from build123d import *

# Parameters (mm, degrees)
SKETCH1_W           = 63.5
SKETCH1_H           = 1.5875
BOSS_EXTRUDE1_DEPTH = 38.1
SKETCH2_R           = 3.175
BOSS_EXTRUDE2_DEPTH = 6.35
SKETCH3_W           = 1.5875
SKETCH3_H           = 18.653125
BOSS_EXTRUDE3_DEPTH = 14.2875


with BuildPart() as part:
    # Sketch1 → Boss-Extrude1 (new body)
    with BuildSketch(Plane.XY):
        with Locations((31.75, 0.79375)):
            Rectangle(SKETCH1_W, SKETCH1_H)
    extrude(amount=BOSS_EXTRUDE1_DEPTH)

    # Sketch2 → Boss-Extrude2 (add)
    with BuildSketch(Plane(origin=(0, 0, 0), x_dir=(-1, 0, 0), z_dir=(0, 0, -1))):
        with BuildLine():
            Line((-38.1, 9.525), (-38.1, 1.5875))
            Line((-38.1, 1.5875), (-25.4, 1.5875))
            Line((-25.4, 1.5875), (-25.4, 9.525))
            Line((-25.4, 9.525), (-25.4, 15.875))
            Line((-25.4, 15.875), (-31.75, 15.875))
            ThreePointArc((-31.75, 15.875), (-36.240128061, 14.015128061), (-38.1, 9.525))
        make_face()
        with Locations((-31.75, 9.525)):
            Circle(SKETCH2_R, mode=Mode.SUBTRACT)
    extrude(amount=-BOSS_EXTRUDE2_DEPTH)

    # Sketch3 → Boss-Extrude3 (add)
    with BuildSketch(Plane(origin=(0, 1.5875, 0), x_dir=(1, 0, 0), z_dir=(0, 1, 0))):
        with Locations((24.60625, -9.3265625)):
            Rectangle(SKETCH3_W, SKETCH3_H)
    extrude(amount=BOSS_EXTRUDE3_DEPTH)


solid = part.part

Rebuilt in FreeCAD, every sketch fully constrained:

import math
import FreeCAD as App
import Part
import Sketcher

V = App.Vector
Q = App.Units.Quantity


def add_polygon(sketch, points):
    """Adds a closed chain of lines whose ends are joined by coincident constraints."""
    first, n = sketch.GeometryCount, len(points)
    for a, b in zip(points, points[1:] + points[:1]):
        sketch.addGeometry(Part.LineSegment(App.Vector(*a, 0), App.Vector(*b, 0)), False)
    for i in range(n):
        sketch.addConstraint(Sketcher.Constraint("Coincident", first + i, 2, first + (i + 1) % n, 1))

doc = App.newDocument("Part")
body = doc.addObject("PartDesign::Body", "Body")

# Sketch on XY plane
sketch1 = body.newObject("Sketcher::SketchObject", "Sketch")
sketch1.AttachmentSupport = (doc.getObject("XY_Plane"), [""])
sketch1.MapMode = "FlatFace"
add_polygon(sketch1, [(0, 1.6), (0, 0), (63.5, 0), (63.5, 1.6)])  # lines 0-3
sketch1.addConstraint(Sketcher.Constraint("Vertical", 0))
sketch1.addConstraint(Sketcher.Constraint("Horizontal", 1))
sketch1.addConstraint(Sketcher.Constraint("Vertical", 2))
sketch1.addConstraint(Sketcher.Constraint("Horizontal", 3))
sketch1.addConstraint(Sketcher.Constraint("Coincident", 0, 2, -1, 1))
sketch1.addConstraint(Sketcher.Constraint("DistanceX", 1, 1, 1, 2, Q("2.5 in")))
sketch1.addConstraint(Sketcher.Constraint("DistanceY", 0, 2, 0, 1, Q("0.0625 in")))
pad1 = body.newObject("PartDesign::Pad", "Pad")
pad1.Profile = sketch1
pad1.Length = Q("1.5 in")

# Sketch on XY plane
sketch2 = body.newObject("Sketcher::SketchObject", "Sketch001")
sketch2.AttachmentSupport = (doc.getObject("XY_Plane"), [""])
sketch2.MapMode = "FlatFace"
sketch2.addGeometry(Part.LineSegment(V(38.1, 9.5, 0), V(38.1, 1.6, 0)), False)
sketch2.addGeometry(Part.LineSegment(V(38.1, 1.6, 0), V(25.4, 1.6, 0)), False)
sketch2.addGeometry(Part.LineSegment(V(25.4, 1.6, 0), V(25.4, 15.9, 0)), False)
sketch2.addGeometry(Part.LineSegment(V(25.4, 15.9, 0), V(31.8, 15.9, 0)), False)
sketch2.addGeometry(Part.ArcOfCircle(Part.Circle(V(31.8, 9.5, 0), V(0, 0, 1), 6.3), math.radians(0), math.radians(90)), False)
sketch2.addGeometry(Part.Circle(V(31.8, 9.5, 0), V(0, 0, 1), 3.2), False)
sketch2.addConstraint(Sketcher.Constraint("Coincident", 0, 2, 1, 1))
sketch2.addConstraint(Sketcher.Constraint("Coincident", 1, 2, 2, 1))
sketch2.addConstraint(Sketcher.Constraint("Coincident", 2, 2, 3, 1))
sketch2.addConstraint(Sketcher.Constraint("Tangent", 3, 2, 4, 2))
sketch2.addConstraint(Sketcher.Constraint("Tangent", 4, 1, 0, 1))
sketch2.addConstraint(Sketcher.Constraint("Vertical", 0))
sketch2.addConstraint(Sketcher.Constraint("Horizontal", 1))
sketch2.addConstraint(Sketcher.Constraint("Vertical", 2))
sketch2.addConstraint(Sketcher.Constraint("Horizontal", 3))
sketch2.addConstraint(Sketcher.Constraint("Coincident", 5, 3, 4, 3))
sketch2.addConstraint(Sketcher.Constraint("Diameter", 5, Q("0.25 in")))
sketch2.addConstraint(Sketcher.Constraint("Radius", 4, Q("0.25 in")))
sketch2.addConstraint(Sketcher.Constraint("DistanceX", 1, 2, 1, 1, Q("0.5 in")))
sketch2.addConstraint(Sketcher.Constraint("DistanceX", -1, 1, 1, 2, Q("1 in")))
sketch2.addConstraint(Sketcher.Constraint("DistanceY", 0, 2, 0, 1, Q("0.3125 in")))
sketch2.addConstraint(Sketcher.Constraint("DistanceY", -1, 1, 4, 3, Q("0.375 in")))
pad2 = body.newObject("PartDesign::Pad", "Pad001")
pad2.Profile = sketch2
pad2.Length = Q("0.25 in")

# Sketch on XZ plane
sketch3 = body.newObject("Sketcher::SketchObject", "Sketch002")
sketch3.AttachmentSupport = (doc.getObject("XZ_Plane"), [""])
sketch3.MapMode = "FlatFace"
sketch3.AttachmentOffset = App.Placement(V(0, 0, -0.0625 * 25.4), App.Rotation())
add_polygon(sketch3, [(23.8, 0), (23.8, 18.7), (25.4, 18.7), (25.4, 0)])  # lines 0-3
sketch3.addConstraint(Sketcher.Constraint("Vertical", 0))
sketch3.addConstraint(Sketcher.Constraint("Horizontal", 1))
sketch3.addConstraint(Sketcher.Constraint("Vertical", 2))
sketch3.addConstraint(Sketcher.Constraint("Horizontal", 3))
sketch3.addConstraint(Sketcher.Constraint("PointOnObject", 2, 2, -1))
sketch3.addConstraint(Sketcher.Constraint("DistanceX", -1, 1, 1, 2, Q("1 in")))
sketch3.addConstraint(Sketcher.Constraint("DistanceX", 1, 1, 1, 2, Q("0.0625 in")))
sketch3.addConstraint(Sketcher.Constraint("DistanceY", 0, 1, 0, 2, Q("0.734375 in")))
pad3 = body.newObject("PartDesign::Pad", "Pad002")
pad3.Profile = sketch3
pad3.Length = Q("0.5625 in")
pad3.Reversed = True

doc.recompute()
